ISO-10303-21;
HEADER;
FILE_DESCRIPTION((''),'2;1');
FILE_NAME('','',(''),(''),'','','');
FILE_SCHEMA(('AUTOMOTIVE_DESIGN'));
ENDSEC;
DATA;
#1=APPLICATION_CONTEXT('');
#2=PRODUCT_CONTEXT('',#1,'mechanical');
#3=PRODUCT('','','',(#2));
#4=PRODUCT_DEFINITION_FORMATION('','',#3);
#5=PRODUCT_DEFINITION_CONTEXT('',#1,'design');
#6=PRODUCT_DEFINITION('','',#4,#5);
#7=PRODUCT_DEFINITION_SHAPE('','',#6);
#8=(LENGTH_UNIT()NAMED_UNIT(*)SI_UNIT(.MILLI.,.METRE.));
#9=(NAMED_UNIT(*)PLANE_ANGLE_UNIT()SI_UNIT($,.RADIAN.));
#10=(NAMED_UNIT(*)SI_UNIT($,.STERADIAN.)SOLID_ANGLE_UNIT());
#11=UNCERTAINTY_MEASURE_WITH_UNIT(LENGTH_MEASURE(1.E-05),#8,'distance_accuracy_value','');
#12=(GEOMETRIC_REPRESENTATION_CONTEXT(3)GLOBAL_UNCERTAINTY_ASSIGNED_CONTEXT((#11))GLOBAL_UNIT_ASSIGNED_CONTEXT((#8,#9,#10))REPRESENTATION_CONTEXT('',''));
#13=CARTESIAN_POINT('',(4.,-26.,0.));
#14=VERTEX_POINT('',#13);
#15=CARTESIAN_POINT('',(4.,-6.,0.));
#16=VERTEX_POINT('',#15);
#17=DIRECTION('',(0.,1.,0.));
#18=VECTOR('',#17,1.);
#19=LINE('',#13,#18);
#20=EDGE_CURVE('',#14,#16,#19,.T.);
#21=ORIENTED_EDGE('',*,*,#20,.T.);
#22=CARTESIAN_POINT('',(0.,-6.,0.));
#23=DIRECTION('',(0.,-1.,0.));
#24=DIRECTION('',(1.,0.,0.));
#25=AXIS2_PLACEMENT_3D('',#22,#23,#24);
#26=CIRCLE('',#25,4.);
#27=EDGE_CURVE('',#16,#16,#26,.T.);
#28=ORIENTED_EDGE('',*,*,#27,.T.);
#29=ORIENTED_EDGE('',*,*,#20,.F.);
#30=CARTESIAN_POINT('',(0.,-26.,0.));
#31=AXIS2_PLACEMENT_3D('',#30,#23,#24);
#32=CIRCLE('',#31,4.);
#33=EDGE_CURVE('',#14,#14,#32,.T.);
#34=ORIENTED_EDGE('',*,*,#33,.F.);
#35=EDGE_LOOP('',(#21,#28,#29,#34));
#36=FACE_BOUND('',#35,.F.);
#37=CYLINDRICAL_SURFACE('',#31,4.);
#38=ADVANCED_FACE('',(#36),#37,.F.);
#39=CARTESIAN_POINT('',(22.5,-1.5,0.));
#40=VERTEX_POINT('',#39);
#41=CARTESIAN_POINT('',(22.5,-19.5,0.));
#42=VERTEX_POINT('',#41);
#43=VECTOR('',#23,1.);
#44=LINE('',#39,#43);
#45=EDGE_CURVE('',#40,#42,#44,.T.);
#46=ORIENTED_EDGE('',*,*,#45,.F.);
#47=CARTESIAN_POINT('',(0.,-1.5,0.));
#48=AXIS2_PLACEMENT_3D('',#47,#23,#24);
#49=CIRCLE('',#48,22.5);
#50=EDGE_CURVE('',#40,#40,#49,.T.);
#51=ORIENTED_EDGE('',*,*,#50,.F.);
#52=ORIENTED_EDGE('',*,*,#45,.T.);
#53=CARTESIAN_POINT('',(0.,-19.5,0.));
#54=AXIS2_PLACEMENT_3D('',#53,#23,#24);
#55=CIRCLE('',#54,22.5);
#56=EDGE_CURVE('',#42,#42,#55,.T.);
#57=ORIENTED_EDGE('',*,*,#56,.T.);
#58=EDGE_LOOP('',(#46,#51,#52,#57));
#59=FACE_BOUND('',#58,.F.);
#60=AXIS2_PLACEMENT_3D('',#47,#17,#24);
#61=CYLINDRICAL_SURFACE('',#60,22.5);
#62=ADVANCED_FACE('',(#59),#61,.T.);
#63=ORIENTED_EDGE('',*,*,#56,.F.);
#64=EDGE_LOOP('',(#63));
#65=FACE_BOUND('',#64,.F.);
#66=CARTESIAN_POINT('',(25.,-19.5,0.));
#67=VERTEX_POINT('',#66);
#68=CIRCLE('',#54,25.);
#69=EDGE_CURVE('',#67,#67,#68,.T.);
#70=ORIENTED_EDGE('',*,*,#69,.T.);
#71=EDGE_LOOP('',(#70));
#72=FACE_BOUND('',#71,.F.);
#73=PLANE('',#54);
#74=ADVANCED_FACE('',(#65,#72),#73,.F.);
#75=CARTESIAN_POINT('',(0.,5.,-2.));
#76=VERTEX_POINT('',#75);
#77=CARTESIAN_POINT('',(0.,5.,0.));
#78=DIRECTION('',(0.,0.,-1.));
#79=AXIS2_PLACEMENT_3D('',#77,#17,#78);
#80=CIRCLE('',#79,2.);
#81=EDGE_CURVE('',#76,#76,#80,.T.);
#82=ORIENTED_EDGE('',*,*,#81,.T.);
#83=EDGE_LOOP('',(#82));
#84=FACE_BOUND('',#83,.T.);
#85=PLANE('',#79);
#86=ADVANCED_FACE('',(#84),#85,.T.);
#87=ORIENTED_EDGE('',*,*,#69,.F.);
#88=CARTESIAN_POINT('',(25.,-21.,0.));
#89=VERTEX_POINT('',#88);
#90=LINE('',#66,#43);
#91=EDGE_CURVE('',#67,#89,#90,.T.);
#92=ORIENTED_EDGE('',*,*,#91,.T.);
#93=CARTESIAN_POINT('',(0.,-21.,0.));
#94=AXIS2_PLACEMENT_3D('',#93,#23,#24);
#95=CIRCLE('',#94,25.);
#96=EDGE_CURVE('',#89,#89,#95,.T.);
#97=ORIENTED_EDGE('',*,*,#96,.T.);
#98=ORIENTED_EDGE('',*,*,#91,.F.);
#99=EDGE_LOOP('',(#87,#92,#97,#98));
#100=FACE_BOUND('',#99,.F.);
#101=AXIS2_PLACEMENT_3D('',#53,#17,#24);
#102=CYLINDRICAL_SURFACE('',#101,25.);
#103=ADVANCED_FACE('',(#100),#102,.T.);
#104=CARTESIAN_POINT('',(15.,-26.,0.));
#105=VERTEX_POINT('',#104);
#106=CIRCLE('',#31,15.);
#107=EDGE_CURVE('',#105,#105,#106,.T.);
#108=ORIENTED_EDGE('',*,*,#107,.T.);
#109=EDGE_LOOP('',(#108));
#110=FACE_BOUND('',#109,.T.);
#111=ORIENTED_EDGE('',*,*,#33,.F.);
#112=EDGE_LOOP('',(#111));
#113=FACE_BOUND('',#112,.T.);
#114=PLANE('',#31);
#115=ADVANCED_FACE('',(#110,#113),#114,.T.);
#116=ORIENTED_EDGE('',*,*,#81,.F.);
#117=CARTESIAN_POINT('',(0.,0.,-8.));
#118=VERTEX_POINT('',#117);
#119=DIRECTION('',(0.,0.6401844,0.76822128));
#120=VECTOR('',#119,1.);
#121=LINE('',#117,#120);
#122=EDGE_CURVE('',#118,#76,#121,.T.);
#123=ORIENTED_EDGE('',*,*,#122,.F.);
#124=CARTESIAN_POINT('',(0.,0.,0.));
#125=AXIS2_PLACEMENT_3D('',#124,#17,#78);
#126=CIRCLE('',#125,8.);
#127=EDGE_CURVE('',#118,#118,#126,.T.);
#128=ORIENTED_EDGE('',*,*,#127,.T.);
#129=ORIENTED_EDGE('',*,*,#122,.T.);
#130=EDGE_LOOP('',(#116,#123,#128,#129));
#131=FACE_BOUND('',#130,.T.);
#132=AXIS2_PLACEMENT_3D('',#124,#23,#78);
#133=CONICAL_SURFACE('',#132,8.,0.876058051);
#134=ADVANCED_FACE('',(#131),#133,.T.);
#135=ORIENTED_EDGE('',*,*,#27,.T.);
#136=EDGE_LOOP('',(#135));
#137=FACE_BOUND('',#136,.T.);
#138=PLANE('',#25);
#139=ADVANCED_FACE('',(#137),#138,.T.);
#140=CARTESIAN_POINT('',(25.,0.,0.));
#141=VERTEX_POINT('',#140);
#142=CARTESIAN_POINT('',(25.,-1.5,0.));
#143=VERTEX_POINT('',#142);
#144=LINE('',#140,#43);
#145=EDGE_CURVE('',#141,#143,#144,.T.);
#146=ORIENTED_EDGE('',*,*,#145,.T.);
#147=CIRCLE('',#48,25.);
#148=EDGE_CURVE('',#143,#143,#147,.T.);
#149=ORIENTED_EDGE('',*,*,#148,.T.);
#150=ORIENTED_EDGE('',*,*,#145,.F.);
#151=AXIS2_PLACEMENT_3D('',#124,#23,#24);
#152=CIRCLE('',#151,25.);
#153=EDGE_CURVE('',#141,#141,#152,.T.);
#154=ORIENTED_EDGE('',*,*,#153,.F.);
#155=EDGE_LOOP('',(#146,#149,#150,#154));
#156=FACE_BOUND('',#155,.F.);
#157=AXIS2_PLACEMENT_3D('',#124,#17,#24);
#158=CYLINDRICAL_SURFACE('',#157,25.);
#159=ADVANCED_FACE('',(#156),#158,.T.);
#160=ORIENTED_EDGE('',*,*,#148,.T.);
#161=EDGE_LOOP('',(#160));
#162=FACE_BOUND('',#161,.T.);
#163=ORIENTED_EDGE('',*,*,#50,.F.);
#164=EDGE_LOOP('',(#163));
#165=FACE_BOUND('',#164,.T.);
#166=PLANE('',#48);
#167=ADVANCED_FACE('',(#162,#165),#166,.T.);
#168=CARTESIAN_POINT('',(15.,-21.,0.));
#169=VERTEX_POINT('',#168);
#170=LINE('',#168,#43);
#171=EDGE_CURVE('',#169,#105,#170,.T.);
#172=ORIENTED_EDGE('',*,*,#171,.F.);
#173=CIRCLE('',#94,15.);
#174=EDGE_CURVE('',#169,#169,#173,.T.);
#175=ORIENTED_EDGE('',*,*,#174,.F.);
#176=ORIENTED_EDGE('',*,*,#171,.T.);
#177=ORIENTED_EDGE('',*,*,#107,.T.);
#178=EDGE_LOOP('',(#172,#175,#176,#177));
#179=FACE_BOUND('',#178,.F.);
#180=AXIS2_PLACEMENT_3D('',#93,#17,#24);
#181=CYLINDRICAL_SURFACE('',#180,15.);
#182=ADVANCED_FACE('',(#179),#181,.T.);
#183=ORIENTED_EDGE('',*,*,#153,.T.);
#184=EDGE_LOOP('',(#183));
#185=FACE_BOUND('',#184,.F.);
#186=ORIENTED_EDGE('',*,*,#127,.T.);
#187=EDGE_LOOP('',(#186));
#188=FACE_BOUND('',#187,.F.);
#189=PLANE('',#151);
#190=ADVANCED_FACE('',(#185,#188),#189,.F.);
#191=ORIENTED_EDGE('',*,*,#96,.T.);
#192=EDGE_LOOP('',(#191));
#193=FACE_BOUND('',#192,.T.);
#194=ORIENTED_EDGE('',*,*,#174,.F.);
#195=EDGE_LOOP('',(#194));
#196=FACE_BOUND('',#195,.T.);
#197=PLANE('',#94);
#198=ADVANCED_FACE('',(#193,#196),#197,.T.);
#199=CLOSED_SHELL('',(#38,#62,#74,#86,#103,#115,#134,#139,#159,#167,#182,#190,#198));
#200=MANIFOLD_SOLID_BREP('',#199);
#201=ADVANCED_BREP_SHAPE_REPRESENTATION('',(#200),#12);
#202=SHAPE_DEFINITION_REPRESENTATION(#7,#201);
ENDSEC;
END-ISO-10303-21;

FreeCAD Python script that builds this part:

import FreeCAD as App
import Part
import Sketcher

doc = App.newDocument("Part")
params = doc.addObject("Spreadsheet::Sheet", "Params")
for row, (alias, value) in enumerate([
    ("sketch1_diameter", "50 mm"),
    ("pad1_length", "1.5 mm"),
    ("sketch2_diameter", "45 mm"),
    ("pad2_length", "18 mm"),
    ("sketch3_diameter", "50 mm"),
    ("pad3_length", "1.5 mm"),
    ("sketch4_diameter", "30 mm"),
    ("pad4_length", "5 mm"),
    ("sketch5_width", "5 mm"),
    ("sketch5_height", "8 mm"),
    ("sketch5_height2", "2 mm"),
    ("revolution_angle", "360 deg"),
    ("sketch6_diameter", "8 mm"),
    ("pocket1_length", "20 mm"),
], start=1):
    params.set(f"A{row}", alias)
    params.set(f"B{row}", "=" + value)
    params.setAlias(f"B{row}", alias)

body = doc.addObject("PartDesign::Body", "Body")

# Sketch on XZ plane
sketch1 = doc.addObject("Sketcher::SketchObject", "Sketch")
body.addObject(sketch1)
sketch1.AttachmentSupport = (doc.XZ_Plane, [""])
sketch1.MapMode = "FlatFace"
sketch1.addGeometry(Part.Circle(App.Vector(0, 0, 0), App.Vector(0, 0, 1), 25), False)
sketch1.addConstraint([
    Sketcher.Constraint("Coincident", 0, 3, -1, 1),
    Sketcher.Constraint("Diameter", 0, 50.0),
])
sketch1.setExpression("Constraints[1]", "Params.sketch1_diameter")
pad1 = doc.addObject("PartDesign::Pad", "Pad")
body.addObject(pad1)
pad1.Profile = sketch1
pad1.setExpression("Length", "Params.pad1_length")

# Sketch on XZ plane
sketch2 = doc.addObject("Sketcher::SketchObject", "Sketch001")
body.addObject(sketch2)
sketch2.AttachmentSupport = (doc.XZ_Plane, [""])
sketch2.MapMode = "FlatFace"
sketch2.AttachmentOffset = App.Placement(App.Vector(0, 0, 1.5), App.Rotation())
sketch2.addGeometry(Part.Circle(App.Vector(0, 0, 0), App.Vector(0, 0, 1), 22.5), False)
sketch2.addConstraint([
    Sketcher.Constraint("Coincident", 0, 3, -1, 1),
    Sketcher.Constraint("Diameter", 0, 45.0),
])
sketch2.setExpression("Constraints[1]", "Params.sketch2_diameter")
pad2 = doc.addObject("PartDesign::Pad", "Pad001")
body.addObject(pad2)
pad2.Profile = sketch2
pad2.setExpression("Length", "Params.pad2_length")

# Sketch on XZ plane
sketch3 = doc.addObject("Sketcher::SketchObject", "Sketch002")
body.addObject(sketch3)
sketch3.AttachmentSupport = (doc.XZ_Plane, [""])
sketch3.MapMode = "FlatFace"
sketch3.AttachmentOffset = App.Placement(App.Vector(0, 0, 19.5), App.Rotation())
sketch3.addGeometry(Part.Circle(App.Vector(0, 0, 0), App.Vector(0, 0, 1), 25), False)
sketch3.addConstraint([
    Sketcher.Constraint("Coincident", 0, 3, -1, 1),
    Sketcher.Constraint("Diameter", 0, 50.0),
])
sketch3.setExpression("Constraints[1]", "Params.sketch3_diameter")
pad3 = doc.addObject("PartDesign::Pad", "Pad002")
body.addObject(pad3)
pad3.Profile = sketch3
pad3.setExpression("Length", "Params.pad3_length")

# Sketch on XZ plane
sketch4 = doc.addObject("Sketcher::SketchObject", "Sketch003")
body.addObject(sketch4)
sketch4.AttachmentSupport = (doc.XZ_Plane, [""])
sketch4.MapMode = "FlatFace"
sketch4.AttachmentOffset = App.Placement(App.Vector(0, 0, 21), App.Rotation())
sketch4.addGeometry(Part.Circle(App.Vector(0, 0, 0), App.Vector(0, 0, 1), 15), False)
sketch4.addConstraint([
    Sketcher.Constraint("Coincident", 0, 3, -1, 1),
    Sketcher.Constraint("Diameter", 0, 30.0),
])
sketch4.setExpression("Constraints[1]", "Params.sketch4_diameter")
pad4 = doc.addObject("PartDesign::Pad", "Pad003")
body.addObject(pad4)
pad4.Profile = sketch4
pad4.setExpression("Length", "Params.pad4_length")

# Sketch on YZ plane
sketch5 = doc.addObject("Sketcher::SketchObject", "Sketch004")
body.addObject(sketch5)
sketch5.AttachmentSupport = (doc.YZ_Plane, [""])
sketch5.MapMode = "FlatFace"
sketch5.addGeometry([
    Part.LineSegment(App.Vector(5, 0, 0), App.Vector(0, 0, 0)),
    Part.LineSegment(App.Vector(0, 0, 0), App.Vector(0, -8, 0)),
    Part.LineSegment(App.Vector(0, -8, 0), App.Vector(5, -2, 0)),
    Part.LineSegment(App.Vector(5, -2, 0), App.Vector(5, 0, 0)),
], False)
sketch5.addConstraint([
    Sketcher.Constraint("Coincident", 0, 2, 1, 1),
    Sketcher.Constraint("Coincident", 1, 2, 2, 1),
    Sketcher.Constraint("Coincident", 2, 2, 3, 1),
    Sketcher.Constraint("Coincident", 3, 2, 0, 1),
    Sketcher.Constraint("Horizontal", 0),
    Sketcher.Constraint("Vertical", 1),
    Sketcher.Constraint("Vertical", 3),
    Sketcher.Constraint("Coincident", 0, 2, -1, 1),
    Sketcher.Constraint("DistanceX", 0, 2, 0, 1, 5.0),
    Sketcher.Constraint("DistanceY", 1, 2, 1, 1, 8.0),
    Sketcher.Constraint("DistanceY", 3, 1, 3, 2, 2.0),
])
sketch5.setExpression("Constraints[8]", "Params.sketch5_width")
sketch5.setExpression("Constraints[9]", "Params.sketch5_height")
sketch5.setExpression("Constraints[10]", "Params.sketch5_height2")
revolution = doc.addObject("PartDesign::Revolution", "Revolution")
body.addObject(revolution)
revolution.Profile = sketch5
revolution.ReferenceAxis = (sketch5, ["H_Axis"])
revolution.setExpression("Angle", "Params.revolution_angle")

# Sketch on XZ plane
sketch6 = doc.addObject("Sketcher::SketchObject", "Sketch005")
body.addObject(sketch6)
sketch6.AttachmentSupport = (doc.XZ_Plane, [""])
sketch6.MapMode = "FlatFace"
sketch6.AttachmentOffset = App.Placement(App.Vector(0, 0, 26), App.Rotation())
sketch6.addGeometry(Part.Circle(App.Vector(0, 0, 0), App.Vector(0, 0, 1), 4), False)
sketch6.addConstraint([
    Sketcher.Constraint("Coincident", 0, 3, -1, 1),
    Sketcher.Constraint("Diameter", 0, 8.0),
])
sketch6.setExpression("Constraints[1]", "Params.sketch6_diameter")
pocket1 = doc.addObject("PartDesign::Pocket", "Pocket")
body.addObject(pocket1)
pocket1.Profile = sketch6
pocket1.setExpression("Length", "Params.pocket1_length")

doc.recompute()
